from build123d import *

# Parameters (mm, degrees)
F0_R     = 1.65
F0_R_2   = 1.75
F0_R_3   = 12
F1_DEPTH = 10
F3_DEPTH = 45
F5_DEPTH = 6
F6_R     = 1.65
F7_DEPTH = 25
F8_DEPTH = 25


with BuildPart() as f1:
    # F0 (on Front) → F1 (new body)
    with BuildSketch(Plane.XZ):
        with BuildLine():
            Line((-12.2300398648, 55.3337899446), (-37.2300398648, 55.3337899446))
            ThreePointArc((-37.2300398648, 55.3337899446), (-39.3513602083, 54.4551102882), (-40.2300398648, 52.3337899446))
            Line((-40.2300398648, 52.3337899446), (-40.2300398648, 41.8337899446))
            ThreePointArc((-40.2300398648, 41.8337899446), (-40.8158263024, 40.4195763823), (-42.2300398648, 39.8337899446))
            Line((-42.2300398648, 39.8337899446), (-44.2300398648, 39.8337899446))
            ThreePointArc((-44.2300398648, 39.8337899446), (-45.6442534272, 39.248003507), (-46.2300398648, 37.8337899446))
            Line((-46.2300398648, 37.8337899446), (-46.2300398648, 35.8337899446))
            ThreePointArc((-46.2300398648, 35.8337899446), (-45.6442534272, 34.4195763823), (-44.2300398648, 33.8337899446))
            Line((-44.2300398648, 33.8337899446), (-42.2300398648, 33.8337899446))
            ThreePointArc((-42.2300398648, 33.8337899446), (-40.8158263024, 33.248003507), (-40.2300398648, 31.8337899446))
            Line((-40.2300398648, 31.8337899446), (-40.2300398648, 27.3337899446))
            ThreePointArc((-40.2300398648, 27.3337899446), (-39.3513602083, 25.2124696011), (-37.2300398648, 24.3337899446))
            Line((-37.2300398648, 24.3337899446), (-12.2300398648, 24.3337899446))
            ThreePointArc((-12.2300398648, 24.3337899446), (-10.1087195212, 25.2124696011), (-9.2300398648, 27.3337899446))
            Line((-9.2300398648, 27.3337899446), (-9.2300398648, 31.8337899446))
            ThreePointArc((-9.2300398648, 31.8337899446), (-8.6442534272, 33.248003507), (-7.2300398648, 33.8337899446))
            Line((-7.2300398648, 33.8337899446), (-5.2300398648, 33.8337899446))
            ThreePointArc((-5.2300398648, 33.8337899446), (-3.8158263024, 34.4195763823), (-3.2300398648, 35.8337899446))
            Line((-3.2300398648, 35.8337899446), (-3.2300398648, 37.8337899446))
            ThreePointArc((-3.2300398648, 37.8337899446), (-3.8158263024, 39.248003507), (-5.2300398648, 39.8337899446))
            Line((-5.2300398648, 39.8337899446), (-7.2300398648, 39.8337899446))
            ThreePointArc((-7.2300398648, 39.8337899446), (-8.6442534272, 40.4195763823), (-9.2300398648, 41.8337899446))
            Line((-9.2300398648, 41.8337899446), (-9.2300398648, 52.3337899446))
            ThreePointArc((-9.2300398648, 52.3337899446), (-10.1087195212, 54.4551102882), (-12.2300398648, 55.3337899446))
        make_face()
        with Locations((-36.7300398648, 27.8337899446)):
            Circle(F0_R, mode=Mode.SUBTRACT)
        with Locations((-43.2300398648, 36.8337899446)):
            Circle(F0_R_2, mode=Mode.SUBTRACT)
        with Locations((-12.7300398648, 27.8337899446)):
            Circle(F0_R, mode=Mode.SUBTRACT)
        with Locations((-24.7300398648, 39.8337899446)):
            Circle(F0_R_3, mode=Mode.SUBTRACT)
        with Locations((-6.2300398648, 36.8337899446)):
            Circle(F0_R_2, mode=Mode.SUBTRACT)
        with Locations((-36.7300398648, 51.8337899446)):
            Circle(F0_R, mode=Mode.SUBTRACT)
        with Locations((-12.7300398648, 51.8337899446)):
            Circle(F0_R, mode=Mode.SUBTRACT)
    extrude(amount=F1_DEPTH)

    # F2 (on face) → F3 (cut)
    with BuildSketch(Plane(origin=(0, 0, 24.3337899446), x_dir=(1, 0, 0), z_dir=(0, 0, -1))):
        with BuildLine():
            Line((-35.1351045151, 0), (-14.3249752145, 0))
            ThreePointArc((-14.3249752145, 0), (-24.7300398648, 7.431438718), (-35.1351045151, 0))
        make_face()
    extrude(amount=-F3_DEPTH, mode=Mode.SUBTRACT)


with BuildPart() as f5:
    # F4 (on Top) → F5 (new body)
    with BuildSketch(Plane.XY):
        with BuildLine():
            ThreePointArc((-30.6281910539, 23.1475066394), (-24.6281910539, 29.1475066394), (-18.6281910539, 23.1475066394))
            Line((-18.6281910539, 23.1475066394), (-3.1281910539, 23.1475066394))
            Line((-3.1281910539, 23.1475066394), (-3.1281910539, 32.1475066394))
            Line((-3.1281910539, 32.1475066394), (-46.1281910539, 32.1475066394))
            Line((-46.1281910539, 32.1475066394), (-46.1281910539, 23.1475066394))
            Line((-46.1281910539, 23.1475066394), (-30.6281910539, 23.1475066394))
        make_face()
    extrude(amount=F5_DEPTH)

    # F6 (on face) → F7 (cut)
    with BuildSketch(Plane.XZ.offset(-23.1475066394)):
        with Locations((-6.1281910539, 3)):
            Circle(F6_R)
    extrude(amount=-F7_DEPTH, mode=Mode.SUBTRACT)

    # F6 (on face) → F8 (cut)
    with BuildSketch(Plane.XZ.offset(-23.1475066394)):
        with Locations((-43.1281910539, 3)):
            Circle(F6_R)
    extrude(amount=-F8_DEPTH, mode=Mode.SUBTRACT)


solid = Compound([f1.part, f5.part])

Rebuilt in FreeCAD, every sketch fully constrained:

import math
import FreeCAD as App
import Part
import Sketcher
Q = App.Units.Quantity

doc = App.newDocument("Part")
body = doc.addObject("PartDesign::Body", "Body")

# Sketch on XZ plane
sketch1 = body.newObject("Sketcher::SketchObject", "Sketch")
sketch1.AttachmentSupport = (doc.getObject("XZ_Plane"), [""])
sketch1.MapMode = "FlatFace"
sketch1.addGeometry([
    Part.LineSegment(App.Vector(-12.23004, 55.33379, 0), App.Vector(-37.23004, 55.33379, 0)),  # 0
    Part.ArcOfCircle(Part.Circle(App.Vector(-37.23004, 52.33379, 0), App.Vector(0, 0, 1), 3), math.radians(90), math.radians(180)),  # 1
    Part.LineSegment(App.Vector(-40.23004, 52.33379, 0), App.Vector(-40.23004, 41.83379, 0)),  # 2
    Part.ArcOfCircle(Part.Circle(App.Vector(-42.23004, 41.83379, 0), App.Vector(0, 0, 1), 2), math.radians(-90), math.radians(0)),  # 3
    Part.LineSegment(App.Vector(-42.23004, 39.83379, 0), App.Vector(-44.23004, 39.83379, 0)),  # 4
    Part.ArcOfCircle(Part.Circle(App.Vector(-44.23004, 37.83379, 0), App.Vector(0, 0, 1), 2), math.radians(90), math.radians(180)),  # 5
    Part.LineSegment(App.Vector(-46.23004, 37.83379, 0), App.Vector(-46.23004, 35.83379, 0)),  # 6
    Part.ArcOfCircle(Part.Circle(App.Vector(-44.23004, 35.83379, 0), App.Vector(0, 0, 1), 2), math.radians(180), math.radians(270)),  # 7
    Part.LineSegment(App.Vector(-44.23004, 33.83379, 0), App.Vector(-42.23004, 33.83379, 0)),  # 8
    Part.ArcOfCircle(Part.Circle(App.Vector(-42.23004, 31.83379, 0), App.Vector(0, 0, 1), 2), math.radians(0), math.radians(90)),  # 9
    Part.LineSegment(App.Vector(-40.23004, 31.83379, 0), App.Vector(-40.23004, 27.33379, 0)),  # 10
    Part.ArcOfCircle(Part.Circle(App.Vector(-37.23004, 27.33379, 0), App.Vector(0, 0, 1), 3), math.radians(180), math.radians(270)),  # 11
    Part.LineSegment(App.Vector(-37.23004, 24.33379, 0), App.Vector(-12.23004, 24.33379, 0)),  # 12
    Part.ArcOfCircle(Part.Circle(App.Vector(-12.23004, 27.33379, 0), App.Vector(0, 0, 1), 3), math.radians(-90), math.radians(0)),  # 13
    Part.LineSegment(App.Vector(-9.23004, 27.33379, 0), App.Vector(-9.23004, 31.83379, 0)),  # 14
    Part.ArcOfCircle(Part.Circle(App.Vector(-7.23004, 31.83379, 0), App.Vector(0, 0, 1), 2), math.radians(90), math.radians(180)),  # 15
    Part.LineSegment(App.Vector(-7.23004, 33.83379, 0), App.Vector(-5.23004, 33.83379, 0)),  # 16
    Part.ArcOfCircle(Part.Circle(App.Vector(-5.23004, 35.83379, 0), App.Vector(0, 0, 1), 2), math.radians(-90), math.radians(0)),  # 17
    Part.LineSegment(App.Vector(-3.23004, 35.83379, 0), App.Vector(-3.23004, 37.83379, 0)),  # 18
    Part.ArcOfCircle(Part.Circle(App.Vector(-5.23004, 37.83379, 0), App.Vector(0, 0, 1), 2), math.radians(0), math.radians(90)),  # 19
    Part.LineSegment(App.Vector(-5.23004, 39.83379, 0), App.Vector(-7.23004, 39.83379, 0)),  # 20
    Part.ArcOfCircle(Part.Circle(App.Vector(-7.23004, 41.83379, 0), App.Vector(0, 0, 1), 2), math.radians(180), math.radians(270)),  # 21
    Part.LineSegment(App.Vector(-9.23004, 41.83379, 0), App.Vector(-9.23004, 52.33379, 0)),  # 22
    Part.ArcOfCircle(Part.Circle(App.Vector(-12.23004, 52.33379, 0), App.Vector(0, 0, 1), 3), math.radians(0), math.radians(90)),  # 23
    Part.Circle(App.Vector(-36.73004, 27.83379, 0), App.Vector(0, 0, 1), 1.65),  # 24
    Part.Circle(App.Vector(-43.23004, 36.83379, 0), App.Vector(0, 0, 1), 1.75),  # 25
    Part.Circle(App.Vector(-12.73004, 27.83379, 0), App.Vector(0, 0, 1), 1.65),  # 26
    Part.Circle(App.Vector(-6.23004, 36.83379, 0), App.Vector(0, 0, 1), 1.75),  # 27
    Part.Circle(App.Vector(-36.73004, 51.83379, 0), App.Vector(0, 0, 1), 1.65),  # 28
    Part.Circle(App.Vector(-24.73004, 39.83379, 0), App.Vector(0, 0, 1), 12),  # 29
    Part.Circle(App.Vector(-12.73004, 51.83379, 0), App.Vector(0, 0, 1), 1.65),  # 30
], False)
sketch1.addConstraint([
    Sketcher.Constraint("Tangent", 0, 2, 1, 1),
    Sketcher.Constraint("Tangent", 1, 2, 2, 1),
    Sketcher.Constraint("Tangent", 2, 2, 3, 2),
    Sketcher.Constraint("Tangent", 3, 1, 4, 1),
    Sketcher.Constraint("Tangent", 4, 2, 5, 1),
    Sketcher.Constraint("Tangent", 5, 2, 6, 1),
    Sketcher.Constraint("Tangent", 6, 2, 7, 1),
    Sketcher.Constraint("Tangent", 7, 2, 8, 1),
    Sketcher.Constraint("Tangent", 8, 2, 9, 2),
    Sketcher.Constraint("Tangent", 9, 1, 10, 1),
    Sketcher.Constraint("Tangent", 10, 2, 11, 1),
    Sketcher.Constraint("Tangent", 11, 2, 12, 1),
    Sketcher.Constraint("Tangent", 12, 2, 13, 1),
    Sketcher.Constraint("Tangent", 13, 2, 14, 1),
    Sketcher.Constraint("Tangent", 14, 2, 15, 2),
    Sketcher.Constraint("Tangent", 15, 1, 16, 1),
    Sketcher.Constraint("Tangent", 16, 2, 17, 1),
    Sketcher.Constraint("Tangent", 17, 2, 18, 1),
    Sketcher.Constraint("Tangent", 18, 2, 19, 1),
    Sketcher.Constraint("Tangent", 19, 2, 20, 1),
    Sketcher.Constraint("Tangent", 20, 2, 21, 2),
    Sketcher.Constraint("Tangent", 21, 1, 22, 1),
    Sketcher.Constraint("Tangent", 22, 2, 23, 1),
    Sketcher.Constraint("Tangent", 23, 2, 0, 1),
    Sketcher.Constraint("Horizontal", 0),
    Sketcher.Constraint("Vertical", 2),
    Sketcher.Constraint("Horizontal", 4),
    Sketcher.Constraint("Vertical", 6),
    Sketcher.Constraint("Horizontal", 8),
    Sketcher.Constraint("Vertical", 10),
    Sketcher.Constraint("Horizontal", 12),
    Sketcher.Constraint("Vertical", 14),
    Sketcher.Constraint("Horizontal", 16),
    Sketcher.Constraint("Vertical", 18),
    Sketcher.Constraint("Horizontal", 20),
    Sketcher.Constraint("Vertical", 22),
    Sketcher.Constraint("Equal", 3, 5),
    Sketcher.Constraint("Equal", 5, 7),
    Sketcher.Constraint("Equal", 7, 9),
    Sketcher.Constraint("Equal", 1, 11),
    Sketcher.Constraint("Equal", 11, 13),
    Sketcher.Constraint("Equal", 9, 15),
    Sketcher.Constraint("Equal", 15, 17),
    Sketcher.Constraint("Equal", 17, 19),
    Sketcher.Constraint("Equal", 19, 21),
    Sketcher.Constraint("Equal", 13, 23),
    Sketcher.Constraint("Equal", 24, 26),
    Sketcher.Constraint("Equal", 25, 27),
    Sketcher.Constraint("Equal", 26, 28),
    Sketcher.Constraint("Equal", 28, 30),
    Sketcher.Constraint("Horizontal", 9, 3, 15, 3),
    Sketcher.Constraint("Horizontal", 5, 3, 19, 3),
    Sketcher.Constraint("Horizontal", 24, 3, 26, 3),
    Sketcher.Constraint("Horizontal", 25, 3, 27, 3),
    Sketcher.Constraint("Horizontal", 28, 3, 30, 3),
    Sketcher.Constraint("Horizontal", 29, 3, 3, 1),
    Sketcher.Constraint("Vertical", 3, 3, 9, 3),
    Sketcher.Constraint("Vertical", 15, 3, 21, 3),
    Sketcher.Constraint("Vertical", 24, 3, 28, 3),
    Sketcher.Constraint("Vertical", 26, 3, 30, 3),
    Sketcher.Constraint("Equal", 8, 16),
    Sketcher.Constraint("Equal", 20, 6),
    Sketcher.Constraint("Diameter", 29, Q("24 mm")),
    Sketcher.Constraint("Radius", 1, Q("3 mm")),
    Sketcher.Constraint("Radius", 3, Q("2 mm")),
    Sketcher.Constraint("Diameter", 24, Q("3.3 mm")),
    Sketcher.Constraint("Diameter", 25, Q("3.5 mm")),
    Sketcher.Constraint("DistanceX", 0, 2, 0, 1, Q("25 mm")),
    Sketcher.Constraint("DistanceX", 4, 2, 4, 1, Q("2 mm")),
    Sketcher.Constraint("DistanceY", 2, 2, 2, 1, Q("10.5 mm")),
    Sketcher.Constraint("DistanceY", 10, 2, 10, 1, Q("4.5 mm")),
    Sketcher.Constraint("DistanceY", 24, 3, 9, 3, Q("4 mm")),
    Sketcher.Constraint("DistanceX", 5, 3, 25, 3, Q("1 mm")),
    Sketcher.Constraint("DistanceY", 25, 3, 5, 3, Q("1 mm")),
    Sketcher.Constraint("DistanceX", 27, 3, 17, 3, Q("1 mm")),
    Sketcher.Constraint("DistanceY", 3, 3, 28, 3, Q("10 mm")),
    Sketcher.Constraint("DistanceX", 29, 3, 26, 3, Q("12 mm")),
    Sketcher.Constraint("DistanceX", 24, 3, 29, 3, Q("12 mm")),
    Sketcher.Constraint("DistanceX", 11, 3, 24, 3, Q("0.5 mm")),
    Sketcher.Constraint("DistanceX", 1, 3, -1, 1, Q("37.23004 mm")),
    Sketcher.Constraint("DistanceY", -1, 1, 1, 3, Q("52.33379 mm")),
])
pad1 = body.newObject("PartDesign::Pad", "Pad")
pad1.Profile = sketch1
pad1.Length = 10

# Sketch on XY plane
sketch2 = body.newObject("Sketcher::SketchObject", "Sketch001")
sketch2.AttachmentSupport = (doc.getObject("XY_Plane"), [""])
sketch2.MapMode = "FlatFace"
sketch2.AttachmentOffset = App.Placement(App.Vector(0, 0, 24.33379), App.Rotation())
sketch2.addGeometry([
    Part.LineSegment(App.Vector(-35.135105, 0, 0), App.Vector(-14.324975, 0, 0)),
    Part.ArcOfCircle(Part.Circle(App.Vector(-24.73004, 3.568561, 0), App.Vector(0, 0, 1), 11), math.radians(-161.069884), math.radians(-18.930116)),
], False)
sketch2.addConstraint([
    Sketcher.Constraint("Coincident", 0, 1, 1, 1),
    Sketcher.Constraint("Coincident", 1, 2, 0, 2),
    Sketcher.Constraint("Horizontal", 0),
    Sketcher.Constraint("PointOnObject", 0, 1, -1),
    Sketcher.Constraint("Radius", 1, Q("11 mm")),
    Sketcher.Constraint("DistanceX", 0, 1, 0, 2, Q("20.810129 mm")),
    Sketcher.Constraint("DistanceX", 1, 3, -1, 1, Q("24.73004 mm")),
])
pocket1 = body.newObject("PartDesign::Pocket", "Pocket")
pocket1.Profile = sketch2
pocket1.Length = 45
pocket1.Reversed = True
body2 = doc.addObject("PartDesign::Body", "Body001")

# Sketch on XY plane
sketch3 = body2.newObject("Sketcher::SketchObject", "Sketch002")
sketch3.AttachmentSupport = (doc.getObject("XY_Plane001"), [""])
sketch3.MapMode = "FlatFace"
sketch3.addGeometry([
    Part.ArcOfCircle(Part.Circle(App.Vector(-24.628191, 23.147507, 0), App.Vector(0, 0, 1), 6), math.radians(0), math.radians(180)),  # 0
    Part.LineSegment(App.Vector(-18.628191, 23.147507, 0), App.Vector(-3.128191, 23.147507, 0)),  # 1
    Part.LineSegment(App.Vector(-3.128191, 23.147507, 0), App.Vector(-3.128191, 32.147507, 0)),  # 2
    Part.LineSegment(App.Vector(-3.128191, 32.147507, 0), App.Vector(-46.128191, 32.147507, 0)),  # 3
    Part.LineSegment(App.Vector(-46.128191, 32.147507, 0), App.Vector(-46.128191, 23.147507, 0)),  # 4
    Part.LineSegment(App.Vector(-46.128191, 23.147507, 0), App.Vector(-30.628191, 23.147507, 0)),  # 5
], False)
sketch3.addConstraint([
    Sketcher.Constraint("Coincident", 0, 1, 1, 1),
    Sketcher.Constraint("Coincident", 1, 2, 2, 1),
    Sketcher.Constraint("Coincident", 2, 2, 3, 1),
    Sketcher.Constraint("Coincident", 3, 2, 4, 1),
    Sketcher.Constraint("Coincident", 4, 2, 5, 1),
    Sketcher.Constraint("Coincident", 5, 2, 0, 2),
    Sketcher.Constraint("Horizontal", 1),
    Sketcher.Constraint("Vertical", 2),
    Sketcher.Constraint("Horizontal", 3),
    Sketcher.Constraint("Vertical", 4),
    Sketcher.Constraint("Horizontal", 5),
    Sketcher.Constraint("Horizontal", 1, 2, 4, 2),
    Sketcher.Constraint("Equal", 1, 5),
    Sketcher.Constraint("Radius", 0, Q("6 mm")),
    Sketcher.Constraint("DistanceX", 3, 2, 3, 1, Q("43 mm")),
    Sketcher.Constraint("DistanceY", 2, 1, 2, 2, Q("9 mm")),
    Sketcher.Constraint("DistanceY", 0, 3, 2, 2, Q("9 mm")),
    Sketcher.Constraint("DistanceX", 0, 3, -1, 1, Q("24.628191 mm")),
    Sketcher.Constraint("DistanceY", -1, 1, 0, 3, Q("23.147507 mm")),
])
pad2 = body2.newObject("PartDesign::Pad", "Pad001")
pad2.Profile = sketch3
pad2.Length = 6

# Sketch on XZ plane
sketch4 = body2.newObject("Sketcher::SketchObject", "Sketch003")
sketch4.AttachmentSupport = (doc.getObject("XZ_Plane001"), [""])
sketch4.MapMode = "FlatFace"
sketch4.AttachmentOffset = App.Placement(App.Vector(0, 0, -23.147507), App.Rotation())
sketch4.addGeometry(Part.Circle(App.Vector(-6.128191, 3, 0), App.Vector(0, 0, 1), 1.65), False)
sketch4.addConstraint([
    Sketcher.Constraint("Diameter", 0, Q("3.3 mm")),
    Sketcher.Constraint("DistanceY", -1, 1, 0, 3, Q("3 mm")),
    Sketcher.Constraint("DistanceX", 0, 3, -1, 1, Q("6.128191 mm")),
])
pocket2 = body2.newObject("PartDesign::Pocket", "Pocket001")
pocket2.Profile = sketch4
pocket2.Length = 25

# Sketch on XZ plane
sketch5 = body2.newObject("Sketcher::SketchObject", "Sketch004")
sketch5.AttachmentSupport = (doc.getObject("XZ_Plane001"), [""])
sketch5.MapMode = "FlatFace"
sketch5.AttachmentOffset = App.Placement(App.Vector(0, 0, -23.147507), App.Rotation())
sketch5.addGeometry(Part.Circle(App.Vector(-43.128191, 3, 0), App.Vector(0, 0, 1), 1.65), False)
sketch5.addConstraint([
    Sketcher.Constraint("Diameter", 0, Q("3.3 mm")),
    Sketcher.Constraint("DistanceY", -1, 1, 0, 3, Q("3 mm")),
    Sketcher.Constraint("DistanceX", 0, 3, -1, 1, Q("43.128191 mm")),
])
pocket3 = body2.newObject("PartDesign::Pocket", "Pocket002")
pocket3.Profile = sketch5
pocket3.Length = 25

doc.recompute()
